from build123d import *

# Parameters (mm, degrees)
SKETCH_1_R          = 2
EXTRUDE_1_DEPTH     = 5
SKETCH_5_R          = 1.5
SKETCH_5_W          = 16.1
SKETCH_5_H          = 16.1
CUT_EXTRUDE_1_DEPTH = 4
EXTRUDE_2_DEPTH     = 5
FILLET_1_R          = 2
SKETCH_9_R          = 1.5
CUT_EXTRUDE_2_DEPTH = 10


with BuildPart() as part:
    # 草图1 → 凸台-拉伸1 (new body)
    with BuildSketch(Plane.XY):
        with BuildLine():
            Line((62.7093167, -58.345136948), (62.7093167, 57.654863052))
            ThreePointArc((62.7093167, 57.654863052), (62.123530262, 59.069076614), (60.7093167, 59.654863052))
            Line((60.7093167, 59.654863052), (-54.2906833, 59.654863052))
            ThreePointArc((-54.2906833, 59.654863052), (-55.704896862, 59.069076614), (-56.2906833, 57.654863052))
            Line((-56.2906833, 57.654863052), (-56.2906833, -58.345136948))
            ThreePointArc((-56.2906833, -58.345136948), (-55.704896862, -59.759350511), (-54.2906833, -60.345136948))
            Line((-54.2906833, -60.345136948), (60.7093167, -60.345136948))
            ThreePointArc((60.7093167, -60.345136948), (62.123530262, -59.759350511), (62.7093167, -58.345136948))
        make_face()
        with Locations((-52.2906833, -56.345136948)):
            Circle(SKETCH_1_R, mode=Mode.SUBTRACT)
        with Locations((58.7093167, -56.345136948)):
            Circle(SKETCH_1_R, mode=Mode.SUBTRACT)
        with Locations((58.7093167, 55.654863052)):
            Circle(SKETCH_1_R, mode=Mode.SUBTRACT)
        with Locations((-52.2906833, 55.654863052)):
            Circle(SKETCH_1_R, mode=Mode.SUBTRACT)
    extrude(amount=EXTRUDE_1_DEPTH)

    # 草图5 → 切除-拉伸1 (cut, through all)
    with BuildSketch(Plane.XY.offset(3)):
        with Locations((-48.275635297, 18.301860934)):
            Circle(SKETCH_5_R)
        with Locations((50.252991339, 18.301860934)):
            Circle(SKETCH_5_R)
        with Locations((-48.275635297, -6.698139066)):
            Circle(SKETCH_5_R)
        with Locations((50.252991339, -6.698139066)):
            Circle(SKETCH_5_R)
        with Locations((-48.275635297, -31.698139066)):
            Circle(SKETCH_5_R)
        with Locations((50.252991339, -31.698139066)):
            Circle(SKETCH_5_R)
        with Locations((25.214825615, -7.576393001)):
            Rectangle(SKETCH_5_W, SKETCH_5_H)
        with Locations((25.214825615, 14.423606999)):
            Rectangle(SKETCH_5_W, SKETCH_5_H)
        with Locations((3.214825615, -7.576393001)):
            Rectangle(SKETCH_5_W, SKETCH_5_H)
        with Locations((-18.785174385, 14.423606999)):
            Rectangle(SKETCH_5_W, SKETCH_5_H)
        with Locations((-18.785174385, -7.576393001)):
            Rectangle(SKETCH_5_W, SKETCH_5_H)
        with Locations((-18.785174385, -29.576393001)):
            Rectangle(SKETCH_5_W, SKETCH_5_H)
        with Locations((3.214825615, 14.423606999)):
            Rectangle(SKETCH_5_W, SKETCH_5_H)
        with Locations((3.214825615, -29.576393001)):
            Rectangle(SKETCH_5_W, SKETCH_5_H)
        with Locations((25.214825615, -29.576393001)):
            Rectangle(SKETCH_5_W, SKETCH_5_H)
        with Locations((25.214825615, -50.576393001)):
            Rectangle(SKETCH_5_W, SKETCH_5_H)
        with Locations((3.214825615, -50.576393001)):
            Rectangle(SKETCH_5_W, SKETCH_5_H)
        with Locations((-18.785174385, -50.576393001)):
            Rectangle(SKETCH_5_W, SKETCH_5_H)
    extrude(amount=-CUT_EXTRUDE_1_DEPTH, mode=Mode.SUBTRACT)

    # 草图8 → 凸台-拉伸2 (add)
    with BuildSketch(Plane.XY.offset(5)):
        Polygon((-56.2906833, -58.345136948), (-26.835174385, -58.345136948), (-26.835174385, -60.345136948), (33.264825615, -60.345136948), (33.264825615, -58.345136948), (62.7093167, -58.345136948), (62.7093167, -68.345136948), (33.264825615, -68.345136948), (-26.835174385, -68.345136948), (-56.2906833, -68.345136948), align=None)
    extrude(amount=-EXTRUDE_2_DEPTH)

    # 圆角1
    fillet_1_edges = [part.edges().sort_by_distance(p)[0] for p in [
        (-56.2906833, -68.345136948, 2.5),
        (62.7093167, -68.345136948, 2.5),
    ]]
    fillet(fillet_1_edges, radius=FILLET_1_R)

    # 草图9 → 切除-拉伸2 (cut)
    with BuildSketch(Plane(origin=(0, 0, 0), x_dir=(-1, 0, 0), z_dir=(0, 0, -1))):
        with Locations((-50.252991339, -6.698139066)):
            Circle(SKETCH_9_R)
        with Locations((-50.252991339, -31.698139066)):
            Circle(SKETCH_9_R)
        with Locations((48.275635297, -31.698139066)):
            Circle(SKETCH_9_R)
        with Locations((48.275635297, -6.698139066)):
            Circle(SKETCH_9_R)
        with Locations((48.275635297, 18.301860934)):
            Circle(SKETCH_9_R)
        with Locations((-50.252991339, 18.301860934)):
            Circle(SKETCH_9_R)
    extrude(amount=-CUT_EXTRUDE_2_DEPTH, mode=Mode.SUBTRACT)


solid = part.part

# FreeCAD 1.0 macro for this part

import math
import FreeCAD as App
import Part
import Sketcher
Q = App.Units.Quantity


def edges_at(feature, points):
    """Names of the edges that pass closest to the given points."""
    edges = feature.Shape.Edges
    near = lambda p: min(range(len(edges)), key=lambda i: edges[i].distToShape(Part.Vertex(*p))[0])
    return sorted({f"Edge{near(p) + 1}" for p in points})


def add_polygon(sketch, points):
    """Adds a closed chain of lines whose ends are joined by coincident constraints."""
    first, n = sketch.GeometryCount, len(points)
    for a, b in zip(points, points[1:] + points[:1]):
        sketch.addGeometry(Part.LineSegment(App.Vector(*a, 0), App.Vector(*b, 0)), False)
    for i in range(n):
        sketch.addConstraint(Sketcher.Constraint("Coincident", first + i, 2, first + (i + 1) % n, 1))

doc = App.newDocument("Part")
params = doc.addObject("Spreadsheet::Sheet", "Params")
for row, (alias, value) in enumerate([
    ("sketch1_diameter", "4 mm"),
    ("sketch1_width", "115 mm"),
    ("sketch1_height", "116 mm"),
    ("pad1_length", "5 mm"),
    ("sketch2_diameter", "3 mm"),
    ("sketch2_width", "16.1 mm"),
    ("sketch3_width", "119 mm"),
    ("sketch3_height", "10 mm"),
    ("sketch3_height2", "2 mm"),
    ("sketch3_width2", "60.1 mm"),
    ("pad2_length", "5 mm"),
    ("fillet_radius", "2 mm"),
    ("sketch4_diameter", "3 mm"),
    ("pocket2_length", "10 mm"),
], start=1):
    params.set(f"A{row}", alias)
    params.set(f"B{row}", "=" + value)
    params.setAlias(f"B{row}", alias)

body = doc.addObject("PartDesign::Body", "Body")

sketch1 = body.newObject("Sketcher::SketchObject", "Sketch")
sketch1.AttachmentSupport = (doc.getObject("XY_Plane"), [""])
sketch1.MapMode = "FlatFace"
sketch1.addGeometry([
    Part.LineSegment(App.Vector(62.7, -58.3, 0), App.Vector(62.7, 57.7, 0)),
    Part.ArcOfCircle(Part.Circle(App.Vector(60.7, 57.7, 0), App.Vector(0, 0, 1), 2), math.radians(0), math.radians(90)),
    Part.LineSegment(App.Vector(60.7, 59.7, 0), App.Vector(-54.3, 59.7, 0)),
    Part.ArcOfCircle(Part.Circle(App.Vector(-54.3, 57.7, 0), App.Vector(0, 0, 1), 2), math.radians(90), math.radians(180)),
    Part.LineSegment(App.Vector(-56.3, 57.7, 0), App.Vector(-56.3, -58.3, 0)),
    Part.ArcOfCircle(Part.Circle(App.Vector(-54.3, -58.3, 0), App.Vector(0, 0, 1), 2), math.radians(180), math.radians(270)),
    Part.LineSegment(App.Vector(-54.3, -60.3, 0), App.Vector(60.7, -60.3, 0)),
    Part.ArcOfCircle(Part.Circle(App.Vector(60.7, -58.3, 0), App.Vector(0, 0, 1), 2), math.radians(-90), math.radians(0)),
    Part.Circle(App.Vector(-52.3, -56.3, 0), App.Vector(0, 0, 1), 2),
    Part.Circle(App.Vector(58.7, -56.3, 0), App.Vector(0, 0, 1), 2),
    Part.Circle(App.Vector(-52.3, 55.7, 0), App.Vector(0, 0, 1), 2),
    Part.Circle(App.Vector(58.7, 55.7, 0), App.Vector(0, 0, 1), 2),
], False)
sketch1.addConstraint([
    Sketcher.Constraint("Tangent", 0, 2, 1, 1),
    Sketcher.Constraint("Tangent", 1, 2, 2, 1),
    Sketcher.Constraint("Tangent", 2, 2, 3, 1),
    Sketcher.Constraint("Tangent", 3, 2, 4, 1),
    Sketcher.Constraint("Tangent", 4, 2, 5, 1),
    Sketcher.Constraint("Tangent", 5, 2, 6, 1),
    Sketcher.Constraint("Tangent", 6, 2, 7, 1),
    Sketcher.Constraint("Tangent", 7, 2, 0, 1),
    Sketcher.Constraint("Vertical", 0),
    Sketcher.Constraint("Horizontal", 2),
    Sketcher.Constraint("Vertical", 4),
    Sketcher.Constraint("Horizontal", 6),
    Sketcher.Constraint("Equal", 1, 3),
    Sketcher.Constraint("Equal", 3, 5),
    Sketcher.Constraint("Equal", 5, 7),
    Sketcher.Constraint("Equal", 7, 8),
    Sketcher.Constraint("Equal", 8, 9),
    Sketcher.Constraint("Equal", 9, 10),
    Sketcher.Constraint("Equal", 10, 11),
    Sketcher.Constraint("Horizontal", 8, 3, 9, 3),
    Sketcher.Constraint("Horizontal", 10, 3, 11, 3),
    Sketcher.Constraint("Vertical", 8, 3, 10, 3),
    Sketcher.Constraint("Vertical", 9, 3, 11, 3),
    Sketcher.Constraint("Diameter", 8, Q("4 mm")),
    Sketcher.Constraint("DistanceX", 2, 2, 2, 1, Q("115 mm")),
    Sketcher.Constraint("DistanceY", 0, 1, 0, 2, Q("116 mm")),
    Sketcher.Constraint("DistanceX", 5, 3, 8, 3, Q("2 mm")),
    Sketcher.Constraint("DistanceY", 5, 3, 8, 3, Q("2 mm")),
    Sketcher.Constraint("DistanceX", 9, 3, 7, 3, Q("2 mm")),
    Sketcher.Constraint("DistanceY", 10, 3, 3, 3, Q("2 mm")),
    Sketcher.Constraint("DistanceX", -1, 1, 1, 3, Q("60.709317 mm")),
    Sketcher.Constraint("DistanceY", -1, 1, 1, 3, Q("57.654863 mm")),
])
sketch1.setExpression("Constraints[23]", "Params.sketch1_diameter")
sketch1.setExpression("Constraints[24]", "Params.sketch1_width")
sketch1.setExpression("Constraints[25]", "Params.sketch1_height")
pad1 = body.newObject("PartDesign::Pad", "Pad")
pad1.Profile = sketch1
pad1.setExpression("Length", "Params.pad1_length")

sketch2 = body.newObject("Sketcher::SketchObject", "Sketch001")
sketch2.AttachmentSupport = (doc.getObject("XY_Plane"), [""])
sketch2.MapMode = "FlatFace"
sketch2.AttachmentOffset = App.Placement(App.Vector(0, 0, 3), App.Rotation())
sketch2.addGeometry(Part.Circle(App.Vector(-48.3, 18.3, 0), App.Vector(0, 0, 1), 1.5), False)
sketch2.addGeometry(Part.Circle(App.Vector(50.3, 18.3, 0), App.Vector(0, 0, 1), 1.5), False)
sketch2.addGeometry(Part.Circle(App.Vector(-48.3, -6.7, 0), App.Vector(0, 0, 1), 1.5), False)
sketch2.addGeometry(Part.Circle(App.Vector(50.3, -6.7, 0), App.Vector(0, 0, 1), 1.5), False)
sketch2.addGeometry(Part.Circle(App.Vector(-48.3, -31.7, 0), App.Vector(0, 0, 1), 1.5), False)
sketch2.addGeometry(Part.Circle(App.Vector(50.3, -31.7, 0), App.Vector(0, 0, 1), 1.5), False)
add_polygon(sketch2, [(17.2, 0.5), (17.2, -15.6), (33.3, -15.6), (33.3, 0.5)])
add_polygon(sketch2, [(17.2, 22.5), (17.2, 6.4), (33.3, 6.4), (33.3, 22.5)])
add_polygon(sketch2, [(-4.8, 0.5), (-4.8, -15.6), (11.3, -15.6), (11.3, 0.5)])
add_polygon(sketch2, [(-26.8, 22.5), (-26.8, 6.4), (-10.7, 6.4), (-10.7, 22.5)])
add_polygon(sketch2, [(-26.8, 0.5), (-26.8, -15.6), (-10.7, -15.6), (-10.7, 0.5)])
add_polygon(sketch2, [(-26.8, -21.5), (-26.8, -37.6), (-10.7, -37.6), (-10.7, -21.5)])
add_polygon(sketch2, [(-4.8, 22.5), (-4.8, 6.4), (11.3, 6.4), (11.3, 22.5)])
add_polygon(sketch2, [(-4.8, -21.5), (-4.8, -37.6), (11.3, -37.6), (11.3, -21.5)])
add_polygon(sketch2, [(17.2, -21.5), (17.2, -37.6), (33.3, -37.6), (33.3, -21.5)])
add_polygon(sketch2, [(17.2, -42.5), (17.2, -58.6), (33.3, -58.6), (33.3, -42.5)])
add_polygon(sketch2, [(-4.8, -42.5), (-4.8, -58.6), (11.3, -58.6), (11.3, -42.5)])
add_polygon(sketch2, [(-26.8, -42.5), (-26.8, -58.6), (-10.7, -58.6), (-10.7, -42.5)])
sketch2.addConstraint([
    Sketcher.Constraint("Vertical", 6),
    Sketcher.Constraint("Horizontal", 7),
    Sketcher.Constraint("Vertical", 8),
    Sketcher.Constraint("Horizontal", 9),
    Sketcher.Constraint("Vertical", 10),
    Sketcher.Constraint("Horizontal", 11),
    Sketcher.Constraint("Vertical", 12),
    Sketcher.Constraint("Horizontal", 13),
    Sketcher.Constraint("Vertical", 14),
    Sketcher.Constraint("Horizontal", 15),
    Sketcher.Constraint("Vertical", 16),
    Sketcher.Constraint("Horizontal", 17),
    Sketcher.Constraint("Vertical", 18),
    Sketcher.Constraint("Horizontal", 19),
    Sketcher.Constraint("Vertical", 20),
    Sketcher.Constraint("Horizontal", 21),
    Sketcher.Constraint("Vertical", 22),
    Sketcher.Constraint("Horizontal", 23),
    Sketcher.Constraint("Vertical", 24),
    Sketcher.Constraint("Horizontal", 25),
    Sketcher.Constraint("Vertical", 26),
    Sketcher.Constraint("Horizontal", 27),
    Sketcher.Constraint("Vertical", 28),
    Sketcher.Constraint("Horizontal", 29),
    Sketcher.Constraint("Vertical", 30),
    Sketcher.Constraint("Horizontal", 31),
    Sketcher.Constraint("Vertical", 32),
    Sketcher.Constraint("Horizontal", 33),
    Sketcher.Constraint("Vertical", 34),
    Sketcher.Constraint("Horizontal", 35),
    Sketcher.Constraint("Vertical", 36),
    Sketcher.Constraint("Horizontal", 37),
    Sketcher.Constraint("Vertical", 38),
    Sketcher.Constraint("Horizontal", 39),
    Sketcher.Constraint("Vertical", 40),
    Sketcher.Constraint("Horizontal", 41),
    Sketcher.Constraint("Vertical", 42),
    Sketcher.Constraint("Horizontal", 43),
    Sketcher.Constraint("Vertical", 44),
    Sketcher.Constraint("Horizontal", 45),
    Sketcher.Constraint("Vertical", 46),
    Sketcher.Constraint("Horizontal", 47),
    Sketcher.Constraint("Vertical", 48),
    Sketcher.Constraint("Horizontal", 49),
    Sketcher.Constraint("Vertical", 50),
    Sketcher.Constraint("Horizontal", 51),
    Sketcher.Constraint("Vertical", 52),
    Sketcher.Constraint("Horizontal", 53),
    Sketcher.Constraint("Equal", 0, 1),
    Sketcher.Constraint("Equal", 1, 2),
    Sketcher.Constraint("Equal", 2, 3),
    Sketcher.Constraint("Equal", 3, 4),
    Sketcher.Constraint("Equal", 4, 5),
    Sketcher.Constraint("Horizontal", 0, 3, 1, 3),
    Sketcher.Constraint("Horizontal", 2, 3, 3, 3),
    Sketcher.Constraint("Horizontal", 4, 3, 5, 3),
    Sketcher.Constraint("Horizontal", 7, 2, 14, 2),
    Sketcher.Constraint("Horizontal", 9, 2, 16, 2),
    Sketcher.Constraint("Horizontal", 11, 2, 18, 2),
    Sketcher.Constraint("Horizontal", 13, 2, 20, 2),
    Sketcher.Constraint("Horizontal", 15, 2, 22, 2),
    Sketcher.Constraint("Horizontal", 17, 2, 24, 2),
    Sketcher.Constraint("Horizontal", 19, 2, 30, 2),
    Sketcher.Constraint("Horizontal", 21, 2, 32, 2),
    Sketcher.Constraint("Horizontal", 27, 2, 34, 2),
    Sketcher.Constraint("Horizontal", 29, 2, 36, 2),
    Sketcher.Constraint("Horizontal", 35, 2, 38, 2),
    Sketcher.Constraint("Horizontal", 37, 2, 40, 2),
    Sketcher.Constraint("Horizontal", 43, 2, 46, 2),
    Sketcher.Constraint("Horizontal", 45, 2, 48, 2),
    Sketcher.Constraint("Horizontal", 47, 2, 50, 2),
    Sketcher.Constraint("Horizontal", 49, 2, 52, 2),
    Sketcher.Constraint("Vertical", 0, 3, 2, 3),
    Sketcher.Constraint("Vertical", 1, 3, 3, 3),
    Sketcher.Constraint("Vertical", 2, 3, 4, 3),
    Sketcher.Constraint("Vertical", 3, 3, 5, 3),
    Sketcher.Constraint("Vertical", 9, 2, 10, 2),
    Sketcher.Constraint("Vertical", 8, 2, 11, 2),
    Sketcher.Constraint("Vertical", 21, 2, 22, 2),
    Sketcher.Constraint("Vertical", 20, 2, 23, 2),
    Sketcher.Constraint("Vertical", 25, 2, 26, 2),
    Sketcher.Constraint("Vertical", 24, 2, 27, 2),
    Sketcher.Constraint("Vertical", 17, 2, 30, 2),
    Sketcher.Constraint("Vertical", 16, 2, 31, 2),
    Sketcher.Constraint("Vertical", 33, 2, 34, 2),
    Sketcher.Constraint("Vertical", 32, 2, 35, 2),
    Sketcher.Constraint("Vertical", 13, 2, 38, 2),
    Sketcher.Constraint("Vertical", 12, 2, 39, 2),
    Sketcher.Constraint("Vertical", 41, 2, 42, 2),
    Sketcher.Constraint("Vertical", 40, 2, 43, 2),
    Sketcher.Constraint("Vertical", 37, 2, 46, 2),
    Sketcher.Constraint("Vertical", 36, 2, 47, 2),
    Sketcher.Constraint("Vertical", 29, 2, 50, 2),
    Sketcher.Constraint("Vertical", 28, 2, 51, 2),
    Sketcher.Constraint("Equal", 13, 15),
    Sketcher.Constraint("Equal", 17, 19),
    Sketcher.Constraint("Equal", 53, 6),
    Sketcher.Constraint("Equal", 8, 10),
    Sketcher.Constraint("Equal", 24, 26),
    Sketcher.Constraint("Equal", 40, 42),
    Sketcher.Constraint("Diameter", 0, Q("3 mm")),
    Sketcher.Constraint("DistanceX", 7, 1, 7, 2, Q("16.1 mm")),
    Sketcher.Constraint("DistanceY", 2, 3, 0, 3, Q("25 mm")),
    Sketcher.Constraint("DistanceY", 4, 3, 2, 3, Q("25 mm")),
    Sketcher.Constraint("DistanceY", 6, 2, 10, 2, Q("22 mm")),
    Sketcher.Constraint("DistanceX", 14, 2, 6, 2, Q("22 mm")),
    Sketcher.Constraint("DistanceX", 18, 2, 17, 2, Q("22 mm")),
    Sketcher.Constraint("DistanceY", 26, 2, 22, 2, Q("22 mm")),
    Sketcher.Constraint("DistanceY", 42, 2, 38, 2, Q("21 mm")),
    Sketcher.Constraint("DistanceY", -1, 1, 0, 3, Q("18.301861 mm")),
    Sketcher.Constraint("DistanceX", -1, 1, 1, 3, Q("50.252991 mm")),
    Sketcher.Constraint("DistanceX", 2, 3, 6, 2, Q("65.440461 mm")),
    Sketcher.Constraint("DistanceX", 0, 3, -1, 1, Q("48.275635 mm")),
    Sketcher.Constraint("DistanceY", 6, 2, -1, 1, Q("15.626393 mm")),
])
sketch2.setExpression("Constraints[148]", "Params.sketch2_diameter")
sketch2.setExpression("Constraints[149]", "Params.sketch2_width")
pocket1 = body.newObject("PartDesign::Pocket", "Pocket")
pocket1.Profile = sketch2
pocket1.Type = "ThroughAll"

sketch3 = body.newObject("Sketcher::SketchObject", "Sketch002")
sketch3.AttachmentSupport = (doc.getObject("XY_Plane"), [""])
sketch3.MapMode = "FlatFace"
sketch3.AttachmentOffset = App.Placement(App.Vector(0, 0, 5), App.Rotation())
add_polygon(sketch3, [(-26.8, -58.3), (-56.3, -58.3), (-56.3, -68.3), (62.7, -68.3), (62.7, -58.3), (33.3, -58.3), (33.3, -60.3), (-26.8, -60.3)])
sketch3.addConstraint([
    Sketcher.Constraint("Horizontal", 0),
    Sketcher.Constraint("Vertical", 1),
    Sketcher.Constraint("Horizontal", 2),
    Sketcher.Constraint("Vertical", 3),
    Sketcher.Constraint("Horizontal", 4),
    Sketcher.Constraint("Vertical", 5),
    Sketcher.Constraint("Horizontal", 6),
    Sketcher.Constraint("Vertical", 7),
    Sketcher.Constraint("Horizontal", 0, 2, 3, 2),
    Sketcher.Constraint("DistanceX", 2, 1, 2, 2, Q("119 mm")),
    Sketcher.Constraint("DistanceY", 1, 2, 1, 1, Q("10 mm")),
    Sketcher.Constraint("DistanceY", 5, 2, 5, 1, Q("2 mm")),
    Sketcher.Constraint("DistanceX", 6, 2, 6, 1, Q("60.1 mm")),
    Sketcher.Constraint("DistanceX", 0, 2, 0, 1, Q("29.455509 mm")),
    Sketcher.Constraint("DistanceX", 0, 2, -1, 1, Q("56.290683 mm")),
    Sketcher.Constraint("DistanceY", 0, 2, -1, 1, Q("58.345137 mm")),
])
sketch3.setExpression("Constraints[17]", "Params.sketch3_width")
sketch3.setExpression("Constraints[18]", "Params.sketch3_height")
sketch3.setExpression("Constraints[19]", "Params.sketch3_height2")
sketch3.setExpression("Constraints[20]", "Params.sketch3_width2")
pad2 = body.newObject("PartDesign::Pad", "Pad001")
pad2.Profile = sketch3
pad2.setExpression("Length", "Params.pad2_length")
pad2.Reversed = True
doc.recompute()

fillet = body.newObject("PartDesign::Fillet", "Fillet")
fillet.Base = (pad2, edges_at(pad2, [(-56.291, -68.345, 2.5), (62.709, -68.345, 2.5)]))
fillet.setExpression("Radius", "Params.fillet_radius")

sketch4 = body.newObject("Sketcher::SketchObject", "Sketch003")
sketch4.AttachmentSupport = (doc.getObject("XY_Plane"), [""])
sketch4.MapMode = "FlatFace"
sketch4.addGeometry([
    Part.Circle(App.Vector(50.3, -6.7, 0), App.Vector(0, 0, 1), 1.5),
    Part.Circle(App.Vector(50.3, -31.7, 0), App.Vector(0, 0, 1), 1.5),
    Part.Circle(App.Vector(-48.3, -31.7, 0), App.Vector(0, 0, 1), 1.5),
    Part.Circle(App.Vector(-48.3, -6.7, 0), App.Vector(0, 0, 1), 1.5),
    Part.Circle(App.Vector(-48.3, 18.3, 0), App.Vector(0, 0, 1), 1.5),
    Part.Circle(App.Vector(50.3, 18.3, 0), App.Vector(0, 0, 1), 1.5),
], False)
sketch4.addConstraint([
    Sketcher.Constraint("Equal", 0, 1),
    Sketcher.Constraint("Equal", 1, 2),
    Sketcher.Constraint("Equal", 2, 3),
    Sketcher.Constraint("Equal", 3, 4),
    Sketcher.Constraint("Equal", 4, 5),
    Sketcher.Constraint("Horizontal", 1, 3, 2, 3),
    Sketcher.Constraint("Horizontal", 0, 3, 3, 3),
    Sketcher.Constraint("Horizontal", 4, 3, 5, 3),
    Sketcher.Constraint("Vertical", 0, 3, 1, 3),
    Sketcher.Constraint("Vertical", 2, 3, 3, 3),
    Sketcher.Constraint("Vertical", 3, 3, 4, 3),
    Sketcher.Constraint("Vertical", 1, 3, 5, 3),
    Sketcher.Constraint("Diameter", 0, Q("3 mm")),
    Sketcher.Constraint("DistanceY", 1, 3, 0, 3, Q("25 mm")),
    Sketcher.Constraint("DistanceY", 3, 3, 4, 3, Q("25 mm")),
    Sketcher.Constraint("DistanceX", -1, 1, 0, 3, Q("50.252991 mm")),
    Sketcher.Constraint("DistanceY", 0, 3, -1, 1, Q("6.698139 mm")),
    Sketcher.Constraint("DistanceX", 2, 3, -1, 1, Q("48.275635 mm")),
])
sketch4.setExpression("Constraints[12]", "Params.sketch4_diameter")
pocket2 = body.newObject("PartDesign::Pocket", "Pocket001")
pocket2.Profile = sketch4
pocket2.setExpression("Length", "Params.pocket2_length")
pocket2.Reversed = True

doc.recompute()
